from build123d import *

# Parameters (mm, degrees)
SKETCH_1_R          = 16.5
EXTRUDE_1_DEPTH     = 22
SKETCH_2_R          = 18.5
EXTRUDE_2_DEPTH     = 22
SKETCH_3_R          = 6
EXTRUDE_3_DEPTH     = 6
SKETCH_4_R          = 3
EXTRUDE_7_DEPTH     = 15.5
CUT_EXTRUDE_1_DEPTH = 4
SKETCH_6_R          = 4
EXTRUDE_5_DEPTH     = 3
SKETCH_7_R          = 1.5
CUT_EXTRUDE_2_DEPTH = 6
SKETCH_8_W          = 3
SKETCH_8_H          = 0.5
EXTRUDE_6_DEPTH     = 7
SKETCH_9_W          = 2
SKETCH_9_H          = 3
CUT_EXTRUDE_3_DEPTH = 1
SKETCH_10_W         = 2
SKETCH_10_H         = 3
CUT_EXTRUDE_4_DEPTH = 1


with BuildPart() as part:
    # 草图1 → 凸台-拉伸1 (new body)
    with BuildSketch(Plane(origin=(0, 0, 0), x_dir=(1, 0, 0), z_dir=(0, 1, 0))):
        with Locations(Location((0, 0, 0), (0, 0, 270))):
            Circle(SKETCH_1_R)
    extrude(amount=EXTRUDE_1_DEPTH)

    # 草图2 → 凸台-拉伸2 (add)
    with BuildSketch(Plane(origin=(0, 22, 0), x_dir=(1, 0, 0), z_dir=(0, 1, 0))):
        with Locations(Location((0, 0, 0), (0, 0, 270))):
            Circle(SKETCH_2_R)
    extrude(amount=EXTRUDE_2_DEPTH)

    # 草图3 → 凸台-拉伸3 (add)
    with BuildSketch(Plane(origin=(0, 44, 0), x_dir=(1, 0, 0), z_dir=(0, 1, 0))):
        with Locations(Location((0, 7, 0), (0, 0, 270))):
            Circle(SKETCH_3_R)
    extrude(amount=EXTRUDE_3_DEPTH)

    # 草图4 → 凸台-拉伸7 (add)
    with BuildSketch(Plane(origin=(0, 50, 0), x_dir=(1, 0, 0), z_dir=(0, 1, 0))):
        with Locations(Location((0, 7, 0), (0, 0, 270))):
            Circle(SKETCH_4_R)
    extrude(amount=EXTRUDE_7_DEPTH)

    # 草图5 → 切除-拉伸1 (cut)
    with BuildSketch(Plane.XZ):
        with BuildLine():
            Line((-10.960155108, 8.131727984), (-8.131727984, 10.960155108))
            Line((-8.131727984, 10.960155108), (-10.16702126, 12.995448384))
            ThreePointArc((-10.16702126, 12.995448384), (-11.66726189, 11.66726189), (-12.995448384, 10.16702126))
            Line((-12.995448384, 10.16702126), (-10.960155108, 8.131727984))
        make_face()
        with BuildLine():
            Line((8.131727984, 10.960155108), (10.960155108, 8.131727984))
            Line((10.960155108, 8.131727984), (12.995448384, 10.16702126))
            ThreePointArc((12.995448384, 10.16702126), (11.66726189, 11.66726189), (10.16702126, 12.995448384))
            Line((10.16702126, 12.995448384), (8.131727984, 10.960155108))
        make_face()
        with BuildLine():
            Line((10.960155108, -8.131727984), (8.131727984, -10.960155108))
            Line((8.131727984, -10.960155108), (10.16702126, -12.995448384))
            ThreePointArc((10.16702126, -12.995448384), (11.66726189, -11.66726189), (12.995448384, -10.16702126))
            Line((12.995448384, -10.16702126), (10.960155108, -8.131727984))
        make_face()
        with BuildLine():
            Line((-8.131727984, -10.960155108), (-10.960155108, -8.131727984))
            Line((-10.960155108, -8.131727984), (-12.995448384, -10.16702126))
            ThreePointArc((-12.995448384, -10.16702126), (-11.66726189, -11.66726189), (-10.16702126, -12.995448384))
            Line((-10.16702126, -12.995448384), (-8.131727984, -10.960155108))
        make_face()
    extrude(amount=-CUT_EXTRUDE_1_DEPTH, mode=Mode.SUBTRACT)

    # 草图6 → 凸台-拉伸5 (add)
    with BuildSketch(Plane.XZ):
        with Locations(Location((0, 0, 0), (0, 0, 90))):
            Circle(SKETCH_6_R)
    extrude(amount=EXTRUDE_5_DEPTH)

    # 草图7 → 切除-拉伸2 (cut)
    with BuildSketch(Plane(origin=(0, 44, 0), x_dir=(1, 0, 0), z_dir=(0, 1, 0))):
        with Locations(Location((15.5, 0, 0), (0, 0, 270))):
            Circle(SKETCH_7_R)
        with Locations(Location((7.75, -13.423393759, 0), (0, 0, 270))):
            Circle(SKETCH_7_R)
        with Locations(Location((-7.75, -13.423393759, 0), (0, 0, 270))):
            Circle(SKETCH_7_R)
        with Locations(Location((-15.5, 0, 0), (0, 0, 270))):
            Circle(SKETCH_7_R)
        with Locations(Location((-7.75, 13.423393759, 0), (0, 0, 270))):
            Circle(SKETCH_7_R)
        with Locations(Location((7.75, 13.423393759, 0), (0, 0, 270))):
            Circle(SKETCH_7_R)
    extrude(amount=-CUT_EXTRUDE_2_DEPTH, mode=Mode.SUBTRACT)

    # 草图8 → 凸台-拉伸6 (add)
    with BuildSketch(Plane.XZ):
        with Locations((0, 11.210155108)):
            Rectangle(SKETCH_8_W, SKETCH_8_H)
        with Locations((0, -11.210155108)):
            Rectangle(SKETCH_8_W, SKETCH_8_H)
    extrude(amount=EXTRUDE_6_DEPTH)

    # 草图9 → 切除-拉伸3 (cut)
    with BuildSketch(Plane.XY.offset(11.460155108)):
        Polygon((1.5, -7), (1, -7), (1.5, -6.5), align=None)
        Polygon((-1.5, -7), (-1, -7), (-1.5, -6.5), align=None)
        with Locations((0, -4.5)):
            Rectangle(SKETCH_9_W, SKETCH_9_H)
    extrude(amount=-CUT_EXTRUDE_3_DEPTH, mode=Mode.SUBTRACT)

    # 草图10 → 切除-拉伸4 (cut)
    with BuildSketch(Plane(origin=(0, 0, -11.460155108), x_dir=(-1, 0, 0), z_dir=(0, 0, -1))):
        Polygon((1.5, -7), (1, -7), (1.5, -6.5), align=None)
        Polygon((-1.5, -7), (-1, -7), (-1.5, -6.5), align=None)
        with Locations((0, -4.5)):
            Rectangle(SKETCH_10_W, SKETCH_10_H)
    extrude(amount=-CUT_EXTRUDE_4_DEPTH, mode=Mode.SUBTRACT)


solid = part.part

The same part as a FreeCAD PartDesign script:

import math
import FreeCAD as App
import Part
import Sketcher
from FreeCAD import Vector
Q = App.Units.Quantity


def add_polygon(sketch, points):
    """Adds a closed chain of lines whose ends are joined by coincident constraints."""
    first, n = sketch.GeometryCount, len(points)
    for a, b in zip(points, points[1:] + points[:1]):
        sketch.addGeometry(Part.LineSegment(App.Vector(*a, 0), App.Vector(*b, 0)), False)
    for i in range(n):
        sketch.addConstraint(Sketcher.Constraint("Coincident", first + i, 2, first + (i + 1) % n, 1))

doc = App.newDocument("Part")
params = doc.addObject("Spreadsheet::Sheet", "Params")
for row, (alias, value) in enumerate([
    ("sketch1_diameter", "33 mm"),
    ("pad1_length", "22 mm"),
    ("sketch2_diameter", "37 mm"),
    ("pad2_length", "22 mm"),
    ("sketch3_diameter", "12 mm"),
    ("pad3_length", "6 mm"),
    ("sketch4_diameter", "6 mm"),
    ("pad4_length", "15.5 mm"),
    ("sketch5_radius", "16.5 mm"),
    ("sketch5_length", "4 mm"),
    ("pocket1_length", "4 mm"),
    ("sketch6_diameter", "8 mm"),
    ("pad5_length", "3 mm"),
    ("sketch7_diameter", "3 mm"),
    ("pocket2_length", "6 mm"),
    ("sketch8_width", "3 mm"),
    ("sketch8_height", "0.5 mm"),
    ("pad6_length", "7 mm"),
    ("sketch9_width", "2 mm"),
    ("sketch9_height", "3 mm"),
    ("sketch9_width2", "0.5 mm"),
    ("pocket3_length", "1 mm"),
    ("sketch10_width", "2 mm"),
    ("sketch10_height", "3 mm"),
    ("sketch10_width2", "0.5 mm"),
    ("pocket4_length", "1 mm"),
], start=1):
    params.set(f"A{row}", alias)
    params.set(f"B{row}", "=" + value)
    params.setAlias(f"B{row}", alias)

body = doc.addObject("PartDesign::Body", "Body")

# Sketch on XZ plane
sketch1 = body.newObject("Sketcher::SketchObject", "Sketch")
sketch1.AttachmentSupport = (doc.getObject("XZ_Plane"), [""])
sketch1.MapMode = "FlatFace"
sketch1.addGeometry(Part.Circle(Vector(0, 0, 0), Vector(0, 0, 1), 16.5), False)
sketch1.addConstraint(Sketcher.Constraint("Coincident", 0, 3, -1, 1))
sketch1.addConstraint(Sketcher.Constraint("Diameter", 0, Q("33 mm")))
sketch1.setExpression("Constraints[1]", "Params.sketch1_diameter")
pad1 = body.newObject("PartDesign::Pad", "Pad")
pad1.Profile = sketch1
pad1.setExpression("Length", "Params.pad1_length")
pad1.Reversed = True

# Sketch on XZ plane
sketch2 = body.newObject("Sketcher::SketchObject", "Sketch001")
sketch2.AttachmentSupport = (doc.getObject("XZ_Plane"), [""])
sketch2.MapMode = "FlatFace"
sketch2.AttachmentOffset = App.Placement(Vector(0, 0, -22), App.Rotation())
sketch2.addGeometry(Part.Circle(Vector(0, 0, 0), Vector(0, 0, 1), 18.5), False)
sketch2.addConstraint(Sketcher.Constraint("Coincident", 0, 3, -1, 1))
sketch2.addConstraint(Sketcher.Constraint("Diameter", 0, Q("37 mm")))
sketch2.setExpression("Constraints[1]", "Params.sketch2_diameter")
pad2 = body.newObject("PartDesign::Pad", "Pad001")
pad2.Profile = sketch2
pad2.setExpression("Length", "Params.pad2_length")
pad2.Reversed = True

# Sketch on XZ plane
sketch3 = body.newObject("Sketcher::SketchObject", "Sketch002")
sketch3.AttachmentSupport = (doc.getObject("XZ_Plane"), [""])
sketch3.MapMode = "FlatFace"
sketch3.AttachmentOffset = App.Placement(Vector(0, 0, -44), App.Rotation())
sketch3.addGeometry(Part.Circle(Vector(0, -7, 0), Vector(0, 0, 1), 6), False)
sketch3.addConstraint(Sketcher.Constraint("PointOnObject", 0, 3, -2))
sketch3.addConstraint(Sketcher.Constraint("Diameter", 0, Q("12 mm")))
sketch3.addConstraint(Sketcher.Constraint("DistanceY", 0, 3, -1, 1, Q("7 mm")))
sketch3.setExpression("Constraints[1]", "Params.sketch3_diameter")
pad3 = body.newObject("PartDesign::Pad", "Pad002")
pad3.Profile = sketch3
pad3.setExpression("Length", "Params.pad3_length")
pad3.Reversed = True

# Sketch on XZ plane
sketch4 = body.newObject("Sketcher::SketchObject", "Sketch003")
sketch4.AttachmentSupport = (doc.getObject("XZ_Plane"), [""])
sketch4.MapMode = "FlatFace"
sketch4.AttachmentOffset = App.Placement(Vector(0, 0, -50), App.Rotation())
sketch4.addGeometry(Part.Circle(Vector(0, -7, 0), Vector(0, 0, 1), 3), False)
sketch4.addConstraint(Sketcher.Constraint("PointOnObject", 0, 3, -2))
sketch4.addConstraint(Sketcher.Constraint("Diameter", 0, Q("6 mm")))
sketch4.addConstraint(Sketcher.Constraint("DistanceY", 0, 3, -1, 1, Q("7 mm")))
sketch4.setExpression("Constraints[1]", "Params.sketch4_diameter")
pad4 = body.newObject("PartDesign::Pad", "Pad003")
pad4.Profile = sketch4
pad4.setExpression("Length", "Params.pad4_length")
pad4.Reversed = True

# Sketch on XZ plane
sketch5 = body.newObject("Sketcher::SketchObject", "Sketch004")
sketch5.AttachmentSupport = (doc.getObject("XZ_Plane"), [""])
sketch5.MapMode = "FlatFace"
sketch5.addGeometry(Part.LineSegment(Vector(-10.960155, 8.131728, 0), Vector(-8.131728, 10.960155, 0)), False)
sketch5.addGeometry(Part.LineSegment(Vector(-8.131728, 10.960155, 0), Vector(-10.167021, 12.995448, 0)), False)
sketch5.addGeometry(Part.ArcOfCircle(Part.Circle(Vector(0, 0, 0), Vector(0, 0, 1), 16.5), math.radians(128.037937), math.radians(141.962063)), False)
sketch5.addGeometry(Part.LineSegment(Vector(-12.995448, 10.167021, 0), Vector(-10.960155, 8.131728, 0)), False)
sketch5.addGeometry(Part.LineSegment(Vector(8.131728, 10.960155, 0), Vector(10.960155, 8.131728, 0)), False)
sketch5.addGeometry(Part.LineSegment(Vector(10.960155, 8.131728, 0), Vector(12.995448, 10.167021, 0)), False)
sketch5.addGeometry(Part.ArcOfCircle(Part.Circle(Vector(0, 0, 0), Vector(0, 0, 1), 16.5), math.radians(38.037937), math.radians(51.962063)), False)
sketch5.addGeometry(Part.LineSegment(Vector(10.167021, 12.995448, 0), Vector(8.131728, 10.960155, 0)), False)
sketch5.addGeometry(Part.LineSegment(Vector(10.960155, -8.131728, 0), Vector(8.131728, -10.960155, 0)), False)
sketch5.addGeometry(Part.LineSegment(Vector(8.131728, -10.960155, 0), Vector(10.167021, -12.995448, 0)), False)
sketch5.addGeometry(Part.ArcOfCircle(Part.Circle(Vector(0, 0, 0), Vector(0, 0, 1), 16.5), math.radians(-51.962063), math.radians(-38.037937)), False)
sketch5.addGeometry(Part.LineSegment(Vector(12.995448, -10.167021, 0), Vector(10.960155, -8.131728, 0)), False)
sketch5.addGeometry(Part.LineSegment(Vector(-8.131728, -10.960155, 0), Vector(-10.960155, -8.131728, 0)), False)
sketch5.addGeometry(Part.LineSegment(Vector(-10.960155, -8.131728, 0), Vector(-12.995448, -10.167021, 0)), False)
sketch5.addGeometry(Part.ArcOfCircle(Part.Circle(Vector(0, 0, 0), Vector(0, 0, 1), 16.5), math.radians(-141.962063), math.radians(-128.037937)), False)
sketch5.addGeometry(Part.LineSegment(Vector(-10.167021, -12.995448, 0), Vector(-8.131728, -10.960155, 0)), False)
sketch5.addConstraint(Sketcher.Constraint("Coincident", 0, 2, 1, 1))
sketch5.addConstraint(Sketcher.Constraint("Coincident", 1, 2, 2, 1))
sketch5.addConstraint(Sketcher.Constraint("Coincident", 2, 2, 3, 1))
sketch5.addConstraint(Sketcher.Constraint("Coincident", 3, 2, 0, 1))
sketch5.addConstraint(Sketcher.Constraint("Coincident", 4, 2, 5, 1))
sketch5.addConstraint(Sketcher.Constraint("Coincident", 5, 2, 6, 1))
sketch5.addConstraint(Sketcher.Constraint("Coincident", 6, 2, 7, 1))
sketch5.addConstraint(Sketcher.Constraint("Coincident", 7, 2, 4, 1))
sketch5.addConstraint(Sketcher.Constraint("Coincident", 8, 2, 9, 1))
sketch5.addConstraint(Sketcher.Constraint("Coincident", 9, 2, 10, 1))
sketch5.addConstraint(Sketcher.Constraint("Coincident", 10, 2, 11, 1))
sketch5.addConstraint(Sketcher.Constraint("Coincident", 11, 2, 8, 1))
sketch5.addConstraint(Sketcher.Constraint("Coincident", 12, 2, 13, 1))
sketch5.addConstraint(Sketcher.Constraint("Coincident", 13, 2, 14, 1))
sketch5.addConstraint(Sketcher.Constraint("Coincident", 14, 2, 15, 1))
sketch5.addConstraint(Sketcher.Constraint("Coincident", 15, 2, 12, 1))
sketch5.addConstraint(Sketcher.Constraint("Coincident", 2, 3, -1, 1))
sketch5.addConstraint(Sketcher.Constraint("Coincident", 6, 3, -1, 1))
sketch5.addConstraint(Sketcher.Constraint("Coincident", 10, 3, -1, 1))
sketch5.addConstraint(Sketcher.Constraint("Coincident", 14, 3, -1, 1))
sketch5.addConstraint(Sketcher.Constraint("Equal", 2, 6))
sketch5.addConstraint(Sketcher.Constraint("Equal", 6, 10))
sketch5.addConstraint(Sketcher.Constraint("Equal", 10, 14))
sketch5.addConstraint(Sketcher.Constraint("Symmetric", 0, 2, 8, 2, -1, 1))
sketch5.addConstraint(Sketcher.Constraint("Symmetric", 3, 2, 11, 2, -1, 1))
sketch5.addConstraint(Sketcher.Constraint("Symmetric", 4, 2, 12, 2, -1, 1))
sketch5.addConstraint(Sketcher.Constraint("Symmetric", 7, 2, 15, 2, -1, 1))
sketch5.addConstraint(Sketcher.Constraint("Symmetric", 3, 2, 4, 2, -2))
sketch5.addConstraint(Sketcher.Constraint("Symmetric", 0, 2, 7, 2, -2))
sketch5.addConstraint(Sketcher.Constraint("Perpendicular", 0, 1))
sketch5.addConstraint(Sketcher.Constraint("Parallel", 1, 3))
sketch5.addConstraint(Sketcher.Constraint("Parallel", 3, 4))
sketch5.addConstraint(Sketcher.Constraint("Perpendicular", 4, 5))
sketch5.addConstraint(Sketcher.Constraint("Parallel", 5, 7))
sketch5.addConstraint(Sketcher.Constraint("Perpendicular", 8, 9))
sketch5.addConstraint(Sketcher.Constraint("Parallel", 9, 11))
sketch5.addConstraint(Sketcher.Constraint("Perpendicular", 12, 13))
sketch5.addConstraint(Sketcher.Constraint("Parallel", 13, 15))
sketch5.addConstraint(Sketcher.Constraint("Equal", 1, 3))
sketch5.addConstraint(Sketcher.Constraint("Radius", 2, Q("16.5 mm")))
sketch5.addConstraint(Sketcher.Constraint("Distance", 0, Q("4 mm")))
sketch5.addConstraint(Sketcher.Constraint("Distance", 1, Q("2.878339 mm")))
sketch5.setExpression("Constraints[39]", "Params.sketch5_radius")
sketch5.setExpression("Constraints[40]", "Params.sketch5_length")
pocket1 = body.newObject("PartDesign::Pocket", "Pocket")
pocket1.Profile = sketch5
pocket1.setExpression("Length", "Params.pocket1_length")

# Sketch on XZ plane
sketch6 = body.newObject("Sketcher::SketchObject", "Sketch005")
sketch6.AttachmentSupport = (doc.getObject("XZ_Plane"), [""])
sketch6.MapMode = "FlatFace"
sketch6.addGeometry(Part.Circle(Vector(0, 0, 0), Vector(0, 0, 1), 4), False)
sketch6.addConstraint(Sketcher.Constraint("Coincident", 0, 3, -1, 1))
sketch6.addConstraint(Sketcher.Constraint("Diameter", 0, Q("8 mm")))
sketch6.setExpression("Constraints[1]", "Params.sketch6_diameter")
pad5 = body.newObject("PartDesign::Pad", "Pad004")
pad5.Profile = sketch6
pad5.setExpression("Length", "Params.pad5_length")

# Sketch on XZ plane
sketch7 = body.newObject("Sketcher::SketchObject", "Sketch006")
sketch7.AttachmentSupport = (doc.getObject("XZ_Plane"), [""])
sketch7.MapMode = "FlatFace"
sketch7.AttachmentOffset = App.Placement(Vector(0, 0, -44), App.Rotation())
sketch7.addGeometry(Part.Circle(Vector(15.5, 0, 0), Vector(0, 0, 1), 1.5), False)
sketch7.addGeometry(Part.Circle(Vector(7.75, 13.423394, 0), Vector(0, 0, 1), 1.5), False)
sketch7.addGeometry(Part.Circle(Vector(-7.75, 13.423394, 0), Vector(0, 0, 1), 1.5), False)
sketch7.addGeometry(Part.Circle(Vector(-15.5, 0, 0), Vector(0, 0, 1), 1.5), False)
sketch7.addGeometry(Part.Circle(Vector(-7.75, -13.423394, 0), Vector(0, 0, 1), 1.5), False)
sketch7.addGeometry(Part.Circle(Vector(7.75, -13.423394, 0), Vector(0, 0, 1), 1.5), False)
sketch7.addConstraint(Sketcher.Constraint("Equal", 0, 1))
sketch7.addConstraint(Sketcher.Constraint("Equal", 1, 2))
sketch7.addConstraint(Sketcher.Constraint("Equal", 2, 3))
sketch7.addConstraint(Sketcher.Constraint("Equal", 3, 4))
sketch7.addConstraint(Sketcher.Constraint("Equal", 4, 5))
sketch7.addConstraint(Sketcher.Constraint("Symmetric", 0, 3, 3, 3, -1, 1))
sketch7.addConstraint(Sketcher.Constraint("Symmetric", 1, 3, 4, 3, -1, 1))
sketch7.addConstraint(Sketcher.Constraint("Symmetric", 2, 3, 5, 3, -1, 1))
sketch7.addConstraint(Sketcher.Constraint("Symmetric", 1, 3, 2, 3, -2))
sketch7.addConstraint(Sketcher.Constraint("PointOnObject", 0, 3, -1))
sketch7.addConstraint(Sketcher.Constraint("Diameter", 0, Q("3 mm")))
sketch7.addConstraint(Sketcher.Constraint("DistanceX", 3, 3, 0, 3, Q("31 mm")))
sketch7.addConstraint(Sketcher.Constraint("DistanceX", 2, 3, 1, 3, Q("15.5 mm")))
sketch7.addConstraint(Sketcher.Constraint("DistanceY", -1, 1, 1, 3, Q("13.423394 mm")))
sketch7.setExpression("Constraints[10]", "Params.sketch7_diameter")
pocket2 = body.newObject("PartDesign::Pocket", "Pocket001")
pocket2.Profile = sketch7
pocket2.setExpression("Length", "Params.pocket2_length")
pocket2.Reversed = True

# Sketch on XZ plane
sketch8 = body.newObject("Sketcher::SketchObject", "Sketch007")
sketch8.AttachmentSupport = (doc.getObject("XZ_Plane"), [""])
sketch8.MapMode = "FlatFace"
add_polygon(sketch8, [(-1.5, 11.460155), (-1.5, 10.960155), (1.5, 10.960155), (1.5, 11.460155)])  # lines 0-3
add_polygon(sketch8, [(-1.5, -10.960155), (-1.5, -11.460155), (1.5, -11.460155), (1.5, -10.960155)])  # lines 4-7
sketch8.addConstraint(Sketcher.Constraint("Vertical", 0))
sketch8.addConstraint(Sketcher.Constraint("Horizontal", 1))
sketch8.addConstraint(Sketcher.Constraint("Vertical", 2))
sketch8.addConstraint(Sketcher.Constraint("Horizontal", 3))
sketch8.addConstraint(Sketcher.Constraint("Vertical", 4))
sketch8.addConstraint(Sketcher.Constraint("Horizontal", 5))
sketch8.addConstraint(Sketcher.Constraint("Vertical", 6))
sketch8.addConstraint(Sketcher.Constraint("Horizontal", 7))
sketch8.addConstraint(Sketcher.Constraint("Symmetric", 2, 2, 4, 2, -1, 1))
sketch8.addConstraint(Sketcher.Constraint("Symmetric", 0, 2, 6, 2, -1, 1))
sketch8.addConstraint(Sketcher.Constraint("Vertical", 3, 2, 4, 2))
sketch8.addConstraint(Sketcher.Constraint("DistanceX", 1, 1, 1, 2, Q("3 mm")))
sketch8.addConstraint(Sketcher.Constraint("DistanceY", 0, 2, 0, 1, Q("0.5 mm")))
sketch8.addConstraint(Sketcher.Constraint("DistanceY", 4, 2, 0, 2, Q("22.42031 mm")))
sketch8.setExpression("Constraints[19]", "Params.sketch8_width")
sketch8.setExpression("Constraints[20]", "Params.sketch8_height")
pad6 = body.newObject("PartDesign::Pad", "Pad005")
pad6.Profile = sketch8
pad6.setExpression("Length", "Params.pad6_length")

# Sketch on XY plane
sketch9 = body.newObject("Sketcher::SketchObject", "Sketch008")
sketch9.AttachmentSupport = (doc.getObject("XY_Plane"), [""])
sketch9.MapMode = "FlatFace"
sketch9.AttachmentOffset = App.Placement(Vector(0, 0, 11.460155), App.Rotation())
add_polygon(sketch9, [(1, -7), (1.5, -7), (1.5, -6.5)])  # lines 0-2
add_polygon(sketch9, [(-1.5, -7), (-1, -7), (-1.5, -6.5)])  # lines 3-5
add_polygon(sketch9, [(-1, -3), (-1, -6), (1, -6), (1, -3)])  # lines 6-9
sketch9.addConstraint(Sketcher.Constraint("Horizontal", 0))
sketch9.addConstraint(Sketcher.Constraint("Vertical", 1))
sketch9.addConstraint(Sketcher.Constraint("Horizontal", 3))
sketch9.addConstraint(Sketcher.Constraint("Vertical", 5))
sketch9.addConstraint(Sketcher.Constraint("Vertical", 6))
sketch9.addConstraint(Sketcher.Constraint("Horizontal", 7))
sketch9.addConstraint(Sketcher.Constraint("Vertical", 8))
sketch9.addConstraint(Sketcher.Constraint("Horizontal", 9))
sketch9.addConstraint(Sketcher.Constraint("Symmetric", 2, 2, 3, 2, -2))
sketch9.addConstraint(Sketcher.Constraint("Symmetric", 1, 2, 4, 2, -2))
sketch9.addConstraint(Sketcher.Constraint("Perpendicular", 2, 4))
sketch9.addConstraint(Sketcher.Constraint("Vertical", 3, 2, 6, 2))
sketch9.addConstraint(Sketcher.Constraint("Vertical", 2, 2, 7, 2))
sketch9.addConstraint(Sketcher.Constraint("DistanceX", 7, 1, 7, 2, Q("2 mm")))
sketch9.addConstraint(Sketcher.Constraint("DistanceY", 6, 2, 6, 1, Q("3 mm")))
sketch9.addConstraint(Sketcher.Constraint("DistanceX", 0, 1, 0, 2, Q("0.5 mm")))
sketch9.addConstraint(Sketcher.Constraint("DistanceY", 0, 2, -1, 1, Q("7 mm")))
sketch9.addConstraint(Sketcher.Constraint("DistanceY", 6, 2, -1, 1, Q("6 mm")))
sketch9.setExpression("Constraints[23]", "Params.sketch9_width")
sketch9.setExpression("Constraints[24]", "Params.sketch9_height")
sketch9.setExpression("Constraints[25]", "Params.sketch9_width2")
pocket3 = body.newObject("PartDesign::Pocket", "Pocket002")
pocket3.Profile = sketch9
pocket3.setExpression("Length", "Params.pocket3_length")

# Sketch on XY plane
sketch10 = body.newObject("Sketcher::SketchObject", "Sketch009")
sketch10.AttachmentSupport = (doc.getObject("XY_Plane"), [""])
sketch10.MapMode = "FlatFace"
sketch10.AttachmentOffset = App.Placement(Vector(0, 0, -11.460155), App.Rotation())
add_polygon(sketch10, [(-1, -7), (-1.5, -7), (-1.5, -6.5)])  # lines 0-2
add_polygon(sketch10, [(1.5, -7), (1, -7), (1.5, -6.5)])  # lines 3-5
add_polygon(sketch10, [(1, -3), (1, -6), (-1, -6), (-1, -3)])  # lines 6-9
sketch10.addConstraint(Sketcher.Constraint("Horizontal", 0))
sketch10.addConstraint(Sketcher.Constraint("Vertical", 1))
sketch10.addConstraint(Sketcher.Constraint("Horizontal", 3))
sketch10.addConstraint(Sketcher.Constraint("Vertical", 5))
sketch10.addConstraint(Sketcher.Constraint("Vertical", 6))
sketch10.addConstraint(Sketcher.Constraint("Horizontal", 7))
sketch10.addConstraint(Sketcher.Constraint("Vertical", 8))
sketch10.addConstraint(Sketcher.Constraint("Horizontal", 9))
sketch10.addConstraint(Sketcher.Constraint("Symmetric", 2, 2, 3, 2, -2))
sketch10.addConstraint(Sketcher.Constraint("Symmetric", 1, 2, 4, 2, -2))
sketch10.addConstraint(Sketcher.Constraint("Perpendicular", 2, 4))
sketch10.addConstraint(Sketcher.Constraint("Vertical", 3, 2, 6, 2))
sketch10.addConstraint(Sketcher.Constraint("Vertical", 2, 2, 7, 2))
sketch10.addConstraint(Sketcher.Constraint("DistanceX", 7, 2, 7, 1, Q("2 mm")))
sketch10.addConstraint(Sketcher.Constraint("DistanceY", 6, 2, 6, 1, Q("3 mm")))
sketch10.addConstraint(Sketcher.Constraint("DistanceX", 0, 2, 0, 1, Q("0.5 mm")))
sketch10.addConstraint(Sketcher.Constraint("DistanceY", 0, 2, -1, 1, Q("7 mm")))
sketch10.addConstraint(Sketcher.Constraint("DistanceY", 6, 2, -1, 1, Q("6 mm")))
sketch10.setExpression("Constraints[23]", "Params.sketch10_width")
sketch10.setExpression("Constraints[24]", "Params.sketch10_height")
sketch10.setExpression("Constraints[25]", "Params.sketch10_width2")
pocket4 = body.newObject("PartDesign::Pocket", "Pocket003")
pocket4.Profile = sketch10
pocket4.setExpression("Length", "Params.pocket4_length")
pocket4.Reversed = True

doc.recompute()
